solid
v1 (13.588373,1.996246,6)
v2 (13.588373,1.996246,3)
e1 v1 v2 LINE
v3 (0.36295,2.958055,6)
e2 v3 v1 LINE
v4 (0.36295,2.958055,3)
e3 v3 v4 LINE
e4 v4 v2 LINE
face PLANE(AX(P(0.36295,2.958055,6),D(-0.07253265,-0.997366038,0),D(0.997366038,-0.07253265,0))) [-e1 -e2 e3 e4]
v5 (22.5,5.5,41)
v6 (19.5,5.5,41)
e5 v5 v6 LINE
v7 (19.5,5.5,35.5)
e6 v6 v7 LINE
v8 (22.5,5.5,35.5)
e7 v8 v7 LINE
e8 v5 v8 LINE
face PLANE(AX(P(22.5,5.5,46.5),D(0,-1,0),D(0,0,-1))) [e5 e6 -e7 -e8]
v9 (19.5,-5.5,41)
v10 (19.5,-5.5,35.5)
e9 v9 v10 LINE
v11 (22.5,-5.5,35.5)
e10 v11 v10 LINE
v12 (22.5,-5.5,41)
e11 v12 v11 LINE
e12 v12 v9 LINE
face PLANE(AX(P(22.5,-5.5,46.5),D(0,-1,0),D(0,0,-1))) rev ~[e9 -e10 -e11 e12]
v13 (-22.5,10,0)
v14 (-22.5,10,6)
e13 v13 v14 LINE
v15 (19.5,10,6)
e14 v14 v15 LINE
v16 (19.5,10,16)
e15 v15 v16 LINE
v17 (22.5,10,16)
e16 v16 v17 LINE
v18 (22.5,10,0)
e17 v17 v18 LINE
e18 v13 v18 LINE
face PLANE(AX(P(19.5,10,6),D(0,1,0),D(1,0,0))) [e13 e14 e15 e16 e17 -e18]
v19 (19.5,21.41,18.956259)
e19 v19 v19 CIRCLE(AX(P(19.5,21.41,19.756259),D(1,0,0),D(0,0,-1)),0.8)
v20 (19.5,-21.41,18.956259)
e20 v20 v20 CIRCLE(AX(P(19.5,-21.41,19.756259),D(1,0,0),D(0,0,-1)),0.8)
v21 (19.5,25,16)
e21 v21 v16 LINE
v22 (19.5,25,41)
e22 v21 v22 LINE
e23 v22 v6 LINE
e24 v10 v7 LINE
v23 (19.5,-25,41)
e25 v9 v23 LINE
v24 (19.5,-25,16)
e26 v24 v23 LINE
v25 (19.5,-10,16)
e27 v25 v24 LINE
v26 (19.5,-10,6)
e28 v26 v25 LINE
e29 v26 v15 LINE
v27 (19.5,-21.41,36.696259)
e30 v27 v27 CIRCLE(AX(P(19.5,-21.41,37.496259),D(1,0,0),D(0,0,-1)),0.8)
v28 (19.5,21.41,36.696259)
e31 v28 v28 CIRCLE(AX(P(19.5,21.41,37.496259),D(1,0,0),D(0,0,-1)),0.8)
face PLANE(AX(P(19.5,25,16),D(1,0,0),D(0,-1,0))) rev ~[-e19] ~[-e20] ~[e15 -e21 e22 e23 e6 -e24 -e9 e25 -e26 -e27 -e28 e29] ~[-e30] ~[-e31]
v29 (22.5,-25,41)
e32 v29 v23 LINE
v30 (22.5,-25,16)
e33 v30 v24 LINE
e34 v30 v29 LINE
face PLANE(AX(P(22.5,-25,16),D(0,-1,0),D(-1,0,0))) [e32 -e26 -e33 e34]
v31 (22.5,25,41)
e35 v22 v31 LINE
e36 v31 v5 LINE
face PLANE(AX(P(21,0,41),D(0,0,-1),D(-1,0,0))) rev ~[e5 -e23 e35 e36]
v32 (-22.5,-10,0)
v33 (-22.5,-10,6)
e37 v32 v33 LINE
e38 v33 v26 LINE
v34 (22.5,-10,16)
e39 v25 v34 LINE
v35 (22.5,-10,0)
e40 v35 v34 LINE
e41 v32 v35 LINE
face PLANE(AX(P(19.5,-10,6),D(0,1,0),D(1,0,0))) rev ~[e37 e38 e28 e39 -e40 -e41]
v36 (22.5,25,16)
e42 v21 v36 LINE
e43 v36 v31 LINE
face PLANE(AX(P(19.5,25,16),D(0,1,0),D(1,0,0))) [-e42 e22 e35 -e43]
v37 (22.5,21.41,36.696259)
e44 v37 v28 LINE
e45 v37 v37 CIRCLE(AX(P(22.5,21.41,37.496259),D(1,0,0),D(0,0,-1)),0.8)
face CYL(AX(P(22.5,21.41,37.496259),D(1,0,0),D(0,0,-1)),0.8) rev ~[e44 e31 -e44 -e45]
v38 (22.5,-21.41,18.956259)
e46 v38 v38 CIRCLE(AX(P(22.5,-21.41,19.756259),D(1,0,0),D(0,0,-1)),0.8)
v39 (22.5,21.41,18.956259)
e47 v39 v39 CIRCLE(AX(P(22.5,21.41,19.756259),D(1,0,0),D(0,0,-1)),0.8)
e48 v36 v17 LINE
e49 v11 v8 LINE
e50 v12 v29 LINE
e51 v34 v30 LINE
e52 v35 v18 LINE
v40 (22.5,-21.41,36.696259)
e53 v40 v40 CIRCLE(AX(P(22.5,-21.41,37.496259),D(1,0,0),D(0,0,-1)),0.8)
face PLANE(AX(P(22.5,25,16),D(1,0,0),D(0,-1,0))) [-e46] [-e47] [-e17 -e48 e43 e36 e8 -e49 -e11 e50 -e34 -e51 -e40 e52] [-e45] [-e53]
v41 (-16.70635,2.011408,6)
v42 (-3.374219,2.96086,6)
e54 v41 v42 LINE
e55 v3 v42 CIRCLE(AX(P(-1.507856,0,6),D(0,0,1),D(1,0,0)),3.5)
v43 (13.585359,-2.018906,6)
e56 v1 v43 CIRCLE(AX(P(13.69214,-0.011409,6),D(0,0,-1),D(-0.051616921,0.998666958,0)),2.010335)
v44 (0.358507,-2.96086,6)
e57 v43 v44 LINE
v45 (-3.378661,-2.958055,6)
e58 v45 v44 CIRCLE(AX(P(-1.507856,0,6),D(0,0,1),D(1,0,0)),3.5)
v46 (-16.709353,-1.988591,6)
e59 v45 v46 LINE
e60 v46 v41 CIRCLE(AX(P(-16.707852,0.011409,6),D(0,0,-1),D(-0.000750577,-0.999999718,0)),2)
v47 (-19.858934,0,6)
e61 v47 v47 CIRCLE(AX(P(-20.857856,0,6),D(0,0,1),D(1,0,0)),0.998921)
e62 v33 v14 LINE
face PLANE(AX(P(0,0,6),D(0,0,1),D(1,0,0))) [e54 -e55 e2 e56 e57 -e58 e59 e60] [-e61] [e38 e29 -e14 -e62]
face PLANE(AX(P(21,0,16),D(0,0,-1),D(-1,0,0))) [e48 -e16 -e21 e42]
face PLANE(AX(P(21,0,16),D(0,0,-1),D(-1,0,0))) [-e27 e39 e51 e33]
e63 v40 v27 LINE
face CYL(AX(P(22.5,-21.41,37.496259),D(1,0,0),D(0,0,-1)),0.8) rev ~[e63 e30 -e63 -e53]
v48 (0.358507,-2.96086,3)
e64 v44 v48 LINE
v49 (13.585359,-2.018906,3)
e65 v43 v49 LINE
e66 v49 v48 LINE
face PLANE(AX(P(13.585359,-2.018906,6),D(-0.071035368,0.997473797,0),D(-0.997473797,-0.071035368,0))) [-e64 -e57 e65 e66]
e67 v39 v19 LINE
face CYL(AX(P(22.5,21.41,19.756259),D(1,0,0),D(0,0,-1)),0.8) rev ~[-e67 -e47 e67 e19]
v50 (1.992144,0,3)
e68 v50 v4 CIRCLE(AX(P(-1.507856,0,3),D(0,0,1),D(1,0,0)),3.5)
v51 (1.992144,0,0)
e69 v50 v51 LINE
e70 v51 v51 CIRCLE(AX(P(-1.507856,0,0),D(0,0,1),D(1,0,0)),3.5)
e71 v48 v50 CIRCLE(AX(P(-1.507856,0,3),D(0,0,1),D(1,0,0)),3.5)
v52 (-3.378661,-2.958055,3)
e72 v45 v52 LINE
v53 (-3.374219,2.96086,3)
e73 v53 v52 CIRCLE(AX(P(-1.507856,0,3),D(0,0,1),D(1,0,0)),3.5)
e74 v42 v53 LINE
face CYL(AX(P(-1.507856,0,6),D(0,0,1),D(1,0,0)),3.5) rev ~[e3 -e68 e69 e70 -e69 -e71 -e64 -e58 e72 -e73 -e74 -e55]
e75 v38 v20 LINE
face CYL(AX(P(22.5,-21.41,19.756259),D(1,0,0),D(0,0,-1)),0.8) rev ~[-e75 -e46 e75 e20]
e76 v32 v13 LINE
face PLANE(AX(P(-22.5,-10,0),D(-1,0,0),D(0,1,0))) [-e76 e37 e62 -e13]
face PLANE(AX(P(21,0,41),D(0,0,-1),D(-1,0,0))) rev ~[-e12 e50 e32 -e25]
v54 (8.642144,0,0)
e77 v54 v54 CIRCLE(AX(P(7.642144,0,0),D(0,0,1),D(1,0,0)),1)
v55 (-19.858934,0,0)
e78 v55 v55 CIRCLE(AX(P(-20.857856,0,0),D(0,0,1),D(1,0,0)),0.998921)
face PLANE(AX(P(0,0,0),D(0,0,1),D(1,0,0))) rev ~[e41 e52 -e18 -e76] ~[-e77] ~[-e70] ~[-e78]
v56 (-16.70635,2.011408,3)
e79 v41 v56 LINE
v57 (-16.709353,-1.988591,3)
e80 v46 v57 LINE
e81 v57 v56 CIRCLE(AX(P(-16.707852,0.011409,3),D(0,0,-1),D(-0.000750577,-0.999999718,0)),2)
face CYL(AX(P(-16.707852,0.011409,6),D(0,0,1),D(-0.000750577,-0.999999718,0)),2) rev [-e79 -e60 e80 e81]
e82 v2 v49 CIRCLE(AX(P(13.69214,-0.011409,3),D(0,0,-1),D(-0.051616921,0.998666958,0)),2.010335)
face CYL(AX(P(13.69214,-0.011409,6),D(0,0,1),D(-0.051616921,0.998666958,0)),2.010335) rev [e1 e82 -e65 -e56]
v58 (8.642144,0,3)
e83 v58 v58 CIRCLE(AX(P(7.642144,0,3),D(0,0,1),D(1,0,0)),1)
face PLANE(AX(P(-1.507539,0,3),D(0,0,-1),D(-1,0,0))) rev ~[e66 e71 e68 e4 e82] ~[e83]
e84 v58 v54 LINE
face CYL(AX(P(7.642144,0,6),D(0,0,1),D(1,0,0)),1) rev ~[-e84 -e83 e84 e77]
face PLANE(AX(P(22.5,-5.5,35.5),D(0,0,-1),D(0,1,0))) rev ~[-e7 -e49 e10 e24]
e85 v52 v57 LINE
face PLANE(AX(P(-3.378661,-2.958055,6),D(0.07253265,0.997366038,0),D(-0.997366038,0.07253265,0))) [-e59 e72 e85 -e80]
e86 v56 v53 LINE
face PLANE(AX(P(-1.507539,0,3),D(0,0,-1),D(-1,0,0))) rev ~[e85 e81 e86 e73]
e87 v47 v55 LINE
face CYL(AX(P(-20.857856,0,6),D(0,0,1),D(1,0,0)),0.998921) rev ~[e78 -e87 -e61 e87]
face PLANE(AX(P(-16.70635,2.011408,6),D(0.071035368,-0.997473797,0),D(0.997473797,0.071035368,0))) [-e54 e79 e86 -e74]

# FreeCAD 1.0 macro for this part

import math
import FreeCAD as App
import Part
import Sketcher
from FreeCAD import Vector
Q = App.Units.Quantity


def add_polygon(sketch, points):
    """Adds a closed chain of lines whose ends are joined by coincident constraints."""
    first, n = sketch.GeometryCount, len(points)
    for a, b in zip(points, points[1:] + points[:1]):
        sketch.addGeometry(Part.LineSegment(App.Vector(*a, 0), App.Vector(*b, 0)), False)
    for i in range(n):
        sketch.addConstraint(Sketcher.Constraint("Coincident", first + i, 2, first + (i + 1) % n, 1))

doc = App.newDocument("Part")
params = doc.addObject("Spreadsheet::Sheet", "Params")
for row, (alias, value) in enumerate([
    ("sketch1_width", "45 mm"),
    ("sketch1_height", "20 mm"),
    ("pad1_length", "6 mm"),
    ("sketch2_width", "3 mm"),
    ("sketch2_height", "20 mm"),
    ("pad2_length", "10 mm"),
    ("sketch3_width", "3 mm"),
    ("sketch3_height", "50 mm"),
    ("pad3_length", "25 mm"),
    ("sketch4_diameter", "1.6 mm"),
    ("sketch4_width", "11 mm"),
    ("sketch5_diameter", "2 mm"),
    ("sketch6_radius", "2 mm"),
    ("pocket3_length", "3 mm"),
    ("sketch7_diameter", "7 mm"),
], start=1):
    params.set(f"A{row}", alias)
    params.set(f"B{row}", "=" + value)
    params.setAlias(f"B{row}", alias)

body = doc.addObject("PartDesign::Body", "Body")

# Sketch on XY plane
sketch1 = body.newObject("Sketcher::SketchObject", "Sketch")
sketch1.AttachmentSupport = (doc.getObject("XY_Plane"), [""])
sketch1.MapMode = "FlatFace"
add_polygon(sketch1, [(-22, 10), (-22, -10), (22, -10), (22, 10)])  # lines 0-3
sketch1.addConstraint([
    Sketcher.Constraint("Vertical", 0),
    Sketcher.Constraint("Horizontal", 1),
    Sketcher.Constraint("Vertical", 2),
    Sketcher.Constraint("Horizontal", 3),
    Sketcher.Constraint("Symmetric", 0, 2, 2, 2, -1, 1),
    Sketcher.Constraint("DistanceX", 1, 1, 1, 2, Q("45 mm")),
    Sketcher.Constraint("DistanceY", 0, 2, 0, 1, Q("20 mm")),
])
sketch1.setExpression("Constraints[9]", "Params.sketch1_width")
sketch1.setExpression("Constraints[10]", "Params.sketch1_height")
pad1 = body.newObject("PartDesign::Pad", "Pad")
pad1.Profile = sketch1
pad1.setExpression("Length", "Params.pad1_length")

# Sketch on XY plane
sketch2 = body.newObject("Sketcher::SketchObject", "Sketch001")
sketch2.AttachmentSupport = (doc.getObject("XY_Plane"), [""])
sketch2.MapMode = "FlatFace"
sketch2.AttachmentOffset = App.Placement(Vector(0, 0, 6), App.Rotation())
add_polygon(sketch2, [(19.5, 10), (19.5, -10), (22.5, -10), (22.5, 10)])  # lines 0-3
sketch2.addConstraint([
    Sketcher.Constraint("Vertical", 0),
    Sketcher.Constraint("Horizontal", 1),
    Sketcher.Constraint("Vertical", 2),
    Sketcher.Constraint("Horizontal", 3),
    Sketcher.Constraint("DistanceX", 1, 1, 1, 2, Q("3 mm")),
    Sketcher.Constraint("DistanceY", 0, 2, 0, 1, Q("20 mm")),
    Sketcher.Constraint("DistanceY", 0, 2, -1, 1, Q("10 mm")),
    Sketcher.Constraint("DistanceX", -1, 1, 0, 2, Q("19.5 mm")),
])
sketch2.setExpression("Constraints[8]", "Params.sketch2_width")
sketch2.setExpression("Constraints[9]", "Params.sketch2_height")
pad2 = body.newObject("PartDesign::Pad", "Pad001")
pad2.Profile = sketch2
pad2.setExpression("Length", "Params.pad2_length")

# Sketch on XY plane
sketch3 = body.newObject("Sketcher::SketchObject", "Sketch002")
sketch3.AttachmentSupport = (doc.getObject("XY_Plane"), [""])
sketch3.MapMode = "FlatFace"
sketch3.AttachmentOffset = App.Placement(Vector(0, 0, 16), App.Rotation())
add_polygon(sketch3, [(19.5, 25), (19.5, -25), (22.5, -25), (22.5, 25)])  # lines 0-3
sketch3.addConstraint([
    Sketcher.Constraint("Vertical", 0),
    Sketcher.Constraint("Horizontal", 1),
    Sketcher.Constraint("Vertical", 2),
    Sketcher.Constraint("Horizontal", 3),
    Sketcher.Constraint("DistanceX", 1, 1, 1, 2, Q("3 mm")),
    Sketcher.Constraint("DistanceY", 0, 2, 0, 1, Q("50 mm")),
    Sketcher.Constraint("DistanceY", 0, 2, -1, 1, Q("25 mm")),
    Sketcher.Constraint("DistanceX", -1, 1, 0, 2, Q("19.5 mm")),
])
sketch3.setExpression("Constraints[8]", "Params.sketch3_width")
sketch3.setExpression("Constraints[9]", "Params.sketch3_height")
pad3 = body.newObject("PartDesign::Pad", "Pad002")
pad3.Profile = sketch3
pad3.setExpression("Length", "Params.pad3_length")

# Sketch on YZ plane
sketch4 = body.newObject("Sketcher::SketchObject", "Sketch003")
sketch4.AttachmentSupport = (doc.getObject("YZ_Plane"), [""])
sketch4.MapMode = "FlatFace"
sketch4.AttachmentOffset = App.Placement(Vector(0, 0, 22.5), App.Rotation())
sketch4.addGeometry(Part.Circle(Vector(-21.4, 19.8, 0), Vector(0, 0, 1), 0.8), False)  # 0
sketch4.addGeometry(Part.Circle(Vector(-21.4, 37.5, 0), Vector(0, 0, 1), 0.8), False)  # 1
sketch4.addGeometry(Part.Circle(Vector(21.4, 19.8, 0), Vector(0, 0, 1), 0.8), False)  # 2
sketch4.addGeometry(Part.Circle(Vector(21.4, 37.5, 0), Vector(0, 0, 1), 0.8), False)  # 3
add_polygon(sketch4, [(5.5, 46.5), (-5.5, 46.5), (-5.5, 35.5), (5.5, 35.5)])  # lines 4-7
sketch4.addConstraint([
    Sketcher.Constraint("Horizontal", 4),
    Sketcher.Constraint("Vertical", 5),
    Sketcher.Constraint("Horizontal", 6),
    Sketcher.Constraint("Vertical", 7),
    Sketcher.Constraint("Equal", 0, 1),
    Sketcher.Constraint("Equal", 1, 2),
    Sketcher.Constraint("Equal", 2, 3),
    Sketcher.Constraint("Symmetric", 0, 3, 2, 3, -2),
    Sketcher.Constraint("Symmetric", 1, 3, 3, 3, -2),
    Sketcher.Constraint("Vertical", 0, 3, 1, 3),
    Sketcher.Constraint("Equal", 6, 5),
    Sketcher.Constraint("Diameter", 0, Q("1.6 mm")),
    Sketcher.Constraint("DistanceX", 4, 2, 4, 1, Q("11 mm")),
    Sketcher.Constraint("DistanceX", 4, 2, -1, 1, Q("5.5 mm")),
    Sketcher.Constraint("DistanceY", -1, 1, 4, 2, Q("46.5 mm")),
    Sketcher.Constraint("DistanceX", 0, 3, -1, 1, Q("21.41 mm")),
    Sketcher.Constraint("DistanceY", 0, 3, 1, 3, Q("17.74 mm")),
    Sketcher.Constraint("DistanceY", -1, 1, 0, 3, Q("19.756259 mm")),
])
sketch4.setExpression("Constraints[15]", "Params.sketch4_diameter")
sketch4.setExpression("Constraints[16]", "Params.sketch4_width")
pocket1 = body.newObject("PartDesign::Pocket", "Pocket")
pocket1.Profile = sketch4
pocket1.Type = "ThroughAll"

# Sketch on XY plane
sketch5 = body.newObject("Sketcher::SketchObject", "Sketch004")
sketch5.AttachmentSupport = (doc.getObject("XY_Plane"), [""])
sketch5.MapMode = "FlatFace"
sketch5.AttachmentOffset = App.Placement(Vector(0, 0, 6), App.Rotation())
sketch5.addGeometry([
    Part.Circle(Vector(-20.9, 0, 0), Vector(0, 0, 1), 1),
    Part.Circle(Vector(7.6, 0, 0), Vector(0, 0, 1), 1),
], False)
sketch5.addConstraint([
    Sketcher.Constraint("PointOnObject", 0, 3, -1),
    Sketcher.Constraint("PointOnObject", 1, 3, -1),
    Sketcher.Constraint("Diameter", 1, Q("2 mm")),
    Sketcher.Constraint("DistanceX", 0, 3, 1, 3, Q("28.5 mm")),
    Sketcher.Constraint("Diameter", 0, Q("1.997843 mm")),
    Sketcher.Constraint("DistanceX", 0, 3, -1, 1, Q("20.857856 mm")),
])
sketch5.setExpression("Constraints[2]", "Params.sketch5_diameter")
pocket2 = body.newObject("PartDesign::Pocket", "Pocket001")
pocket2.Profile = sketch5
pocket2.Type = "ThroughAll"

# Sketch on XY plane
sketch6 = body.newObject("Sketcher::SketchObject", "Sketch005")
sketch6.AttachmentSupport = (doc.getObject("XY_Plane"), [""])
sketch6.MapMode = "FlatFace"
sketch6.AttachmentOffset = App.Placement(Vector(0, 0, 6), App.Rotation())
sketch6.addGeometry([
    Part.LineSegment(Vector(-3.4, 3, 0), Vector(-16.7, 2, 0)),  # 0
    Part.ArcOfCircle(Part.Circle(Vector(-16.7, 0, 0), Vector(0, 0, 1), 2), math.radians(90), math.radians(270)),  # 1
    Part.LineSegment(Vector(-16.7, -2, 0), Vector(-3.4, -3, 0)),  # 2
    Part.LineSegment(Vector(-3.4, -3, 0), Vector(0.4, -3, 0)),  # 3
    Part.LineSegment(Vector(0.4, -3, 0), Vector(13.6, -2, 0)),  # 4
    Part.ArcOfCircle(Part.Circle(Vector(13.7, 0, 0), Vector(0, 0, 1), 2), math.radians(-93), math.radians(93)),  # 5
    Part.LineSegment(Vector(13.6, 2, 0), Vector(0.4, 3, 0)),  # 6
    Part.LineSegment(Vector(0.4, 3, 0), Vector(-3.4, 3, 0)),  # 7
], False)
sketch6.addConstraint([
    Sketcher.Constraint("Coincident", 0, 2, 1, 1),
    Sketcher.Constraint("Coincident", 1, 2, 2, 1),
    Sketcher.Constraint("Coincident", 2, 2, 3, 1),
    Sketcher.Constraint("Coincident", 3, 2, 4, 1),
    Sketcher.Constraint("Coincident", 4, 2, 5, 1),
    Sketcher.Constraint("Coincident", 5, 2, 6, 1),
    Sketcher.Constraint("Coincident", 6, 2, 7, 1),
    Sketcher.Constraint("Coincident", 7, 2, 0, 1),
    Sketcher.Constraint("Parallel", 0, 4),
    Sketcher.Constraint("Parallel", 2, 6),
    Sketcher.Constraint("Parallel", 3, 7),
    Sketcher.Constraint("Equal", 0, 2),
    Sketcher.Constraint("Equal", 4, 6),
    Sketcher.Constraint("Equal", 3, 7),
    Sketcher.Constraint("Radius", 1, Q("2 mm")),
    Sketcher.Constraint("Radius", 5, Q("2.010335 mm")),
    Sketcher.Constraint("DistanceX", 1, 3, 0, 2, Q("0.001501 mm")),
    Sketcher.Constraint("DistanceX", 1, 2, 1, 3, Q("0.001501 mm")),
    Sketcher.Constraint("DistanceX", 2, 2, 5, 3, Q("17.070801 mm")),
    Sketcher.Constraint("DistanceY", 2, 2, 5, 2, Q("4.954301 mm")),
    Sketcher.Constraint("Distance", 3, Q("3.737169 mm")),
    Sketcher.Constraint("Distance", 4, Q("13.26035 mm")),
    Sketcher.Constraint("DistanceX", 1, 3, -1, 1, Q("16.707852 mm")),
    Sketcher.Constraint("DistanceY", -1, 1, 1, 3, Q("0.011409 mm")),
    Sketcher.Constraint("DistanceX", -1, 1, 5, 3, Q("13.69214 mm")),
    Sketcher.Constraint("DistanceY", 5, 3, -1, 1, Q("0.011409 mm")),
])
sketch6.setExpression("Constraints[14]", "Params.sketch6_radius")
pocket3 = body.newObject("PartDesign::Pocket", "Pocket002")
pocket3.Profile = sketch6
pocket3.setExpression("Length", "Params.pocket3_length")

# Sketch on XY plane
sketch7 = body.newObject("Sketcher::SketchObject", "Sketch006")
sketch7.AttachmentSupport = (doc.getObject("XY_Plane"), [""])
sketch7.MapMode = "FlatFace"
sketch7.AttachmentOffset = App.Placement(Vector(0, 0, 6), App.Rotation())
sketch7.addGeometry(Part.Circle(Vector(-1.5, 0, 0), Vector(0, 0, 1), 3.5), False)
sketch7.addConstraint([
    Sketcher.Constraint("PointOnObject", 0, 3, -1),
    Sketcher.Constraint("Diameter", 0, Q("7 mm")),
    Sketcher.Constraint("DistanceX", 0, 3, -1, 1, Q("1.507856 mm")),
])
sketch7.setExpression("Constraints[1]", "Params.sketch7_diameter")
pocket4 = body.newObject("PartDesign::Pocket", "Pocket003")
pocket4.Profile = sketch7
pocket4.Type = "ThroughAll"

doc.recompute()
